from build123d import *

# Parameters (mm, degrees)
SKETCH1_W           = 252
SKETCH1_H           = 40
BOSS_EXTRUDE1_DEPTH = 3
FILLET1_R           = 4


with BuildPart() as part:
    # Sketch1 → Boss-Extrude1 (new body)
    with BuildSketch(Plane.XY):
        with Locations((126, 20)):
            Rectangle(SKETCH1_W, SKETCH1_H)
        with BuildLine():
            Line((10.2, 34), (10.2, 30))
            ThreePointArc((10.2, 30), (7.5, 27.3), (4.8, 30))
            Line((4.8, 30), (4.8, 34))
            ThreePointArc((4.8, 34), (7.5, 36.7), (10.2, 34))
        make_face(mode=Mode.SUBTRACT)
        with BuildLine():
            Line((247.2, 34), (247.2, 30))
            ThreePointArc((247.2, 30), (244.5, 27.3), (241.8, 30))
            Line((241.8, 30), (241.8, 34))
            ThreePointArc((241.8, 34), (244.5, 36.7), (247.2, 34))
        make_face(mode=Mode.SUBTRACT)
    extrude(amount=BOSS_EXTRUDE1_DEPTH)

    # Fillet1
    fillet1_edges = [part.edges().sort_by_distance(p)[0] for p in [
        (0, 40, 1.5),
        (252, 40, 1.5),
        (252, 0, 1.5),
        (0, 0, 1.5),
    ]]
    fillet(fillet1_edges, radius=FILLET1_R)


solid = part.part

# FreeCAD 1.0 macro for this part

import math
import FreeCAD as App
import Part
import Sketcher
from FreeCAD import Vector
Q = App.Units.Quantity


def edges_at(feature, points):
    """Names of the edges that pass closest to the given points."""
    edges = feature.Shape.Edges
    near = lambda p: min(range(len(edges)), key=lambda i: edges[i].distToShape(Part.Vertex(*p))[0])
    return sorted({f"Edge{near(p) + 1}" for p in points})


def add_polygon(sketch, points):
    """Adds a closed chain of lines whose ends are joined by coincident constraints."""
    first, n = sketch.GeometryCount, len(points)
    for a, b in zip(points, points[1:] + points[:1]):
        sketch.addGeometry(Part.LineSegment(App.Vector(*a, 0), App.Vector(*b, 0)), False)
    for i in range(n):
        sketch.addConstraint(Sketcher.Constraint("Coincident", first + i, 2, first + (i + 1) % n, 1))

doc = App.newDocument("Part")
body = doc.addObject("PartDesign::Body", "Body")

# Sketch on XY plane
sketch1 = body.newObject("Sketcher::SketchObject", "Sketch")
sketch1.AttachmentSupport = (doc.getObject("XY_Plane"), [""])
sketch1.MapMode = "FlatFace"
add_polygon(sketch1, [(0, 40), (0, 0), (252, 0), (252, 40)])  # lines 0-3
sketch1.addGeometry(Part.ArcOfCircle(Part.Circle(Vector(7.5, 34, 0), Vector(0, 0, 1), 2.7), math.radians(0), math.radians(180)), False)  # 4
sketch1.addGeometry(Part.LineSegment(Vector(10.2, 34, 0), Vector(10.2, 30, 0)), False)  # 5
sketch1.addGeometry(Part.ArcOfCircle(Part.Circle(Vector(7.5, 30, 0), Vector(0, 0, 1), 2.7), math.radians(180), math.radians(360)), False)  # 6
sketch1.addGeometry(Part.LineSegment(Vector(4.8, 30, 0), Vector(4.8, 34, 0)), False)  # 7
sketch1.addGeometry(Part.ArcOfCircle(Part.Circle(Vector(244.5, 34, 0), Vector(0, 0, 1), 2.7), math.radians(0), math.radians(180)), False)  # 8
sketch1.addGeometry(Part.LineSegment(Vector(247.2, 34, 0), Vector(247.2, 30, 0)), False)  # 9
sketch1.addGeometry(Part.ArcOfCircle(Part.Circle(Vector(244.5, 30, 0), Vector(0, 0, 1), 2.7), math.radians(180), math.radians(360)), False)  # 10
sketch1.addGeometry(Part.LineSegment(Vector(241.8, 30, 0), Vector(241.8, 34, 0)), False)  # 11
sketch1.addConstraint([
    Sketcher.Constraint("Tangent", 4, 1, 5, 1),
    Sketcher.Constraint("Tangent", 5, 2, 6, 2),
    Sketcher.Constraint("Tangent", 6, 1, 7, 1),
    Sketcher.Constraint("Tangent", 7, 2, 4, 2),
    Sketcher.Constraint("Tangent", 8, 1, 9, 1),
    Sketcher.Constraint("Tangent", 9, 2, 10, 2),
    Sketcher.Constraint("Tangent", 10, 1, 11, 1),
    Sketcher.Constraint("Tangent", 11, 2, 8, 2),
    Sketcher.Constraint("Vertical", 0),
    Sketcher.Constraint("Horizontal", 1),
    Sketcher.Constraint("Vertical", 2),
    Sketcher.Constraint("Horizontal", 3),
    Sketcher.Constraint("Vertical", 5),
    Sketcher.Constraint("Vertical", 7),
    Sketcher.Constraint("Vertical", 9),
    Sketcher.Constraint("Vertical", 11),
    Sketcher.Constraint("Coincident", 0, 2, -1, 1),
    Sketcher.Constraint("Equal", 6, 8),
    Sketcher.Constraint("Horizontal", 4, 3, 8, 3),
    Sketcher.Constraint("Horizontal", 6, 3, 10, 3),
    Sketcher.Constraint("Radius", 4, Q("2.7 mm")),
    Sketcher.Constraint("DistanceX", 1, 1, 1, 2, Q("252 mm")),
    Sketcher.Constraint("DistanceY", 0, 2, 0, 1, Q("40 mm")),
    Sketcher.Constraint("DistanceY", 5, 2, 5, 1, Q("4 mm")),
    Sketcher.Constraint("DistanceY", -1, 1, 4, 3, Q("34 mm")),
    Sketcher.Constraint("DistanceX", 4, 3, 8, 3, Q("237 mm")),
    Sketcher.Constraint("DistanceX", -1, 1, 4, 3, Q("7.5 mm")),
])
pad1 = body.newObject("PartDesign::Pad", "Pad")
pad1.Profile = sketch1
pad1.Length = 3
doc.recompute()

fillet = body.newObject("PartDesign::Fillet", "Fillet")
fillet.Base = (pad1, edges_at(pad1, [
    (0, 40, 1.5),
    (252, 40, 1.5),
    (252, 0, 1.5),
    (0, 0, 1.5),
]))
fillet.Radius = 4

doc.recompute()
